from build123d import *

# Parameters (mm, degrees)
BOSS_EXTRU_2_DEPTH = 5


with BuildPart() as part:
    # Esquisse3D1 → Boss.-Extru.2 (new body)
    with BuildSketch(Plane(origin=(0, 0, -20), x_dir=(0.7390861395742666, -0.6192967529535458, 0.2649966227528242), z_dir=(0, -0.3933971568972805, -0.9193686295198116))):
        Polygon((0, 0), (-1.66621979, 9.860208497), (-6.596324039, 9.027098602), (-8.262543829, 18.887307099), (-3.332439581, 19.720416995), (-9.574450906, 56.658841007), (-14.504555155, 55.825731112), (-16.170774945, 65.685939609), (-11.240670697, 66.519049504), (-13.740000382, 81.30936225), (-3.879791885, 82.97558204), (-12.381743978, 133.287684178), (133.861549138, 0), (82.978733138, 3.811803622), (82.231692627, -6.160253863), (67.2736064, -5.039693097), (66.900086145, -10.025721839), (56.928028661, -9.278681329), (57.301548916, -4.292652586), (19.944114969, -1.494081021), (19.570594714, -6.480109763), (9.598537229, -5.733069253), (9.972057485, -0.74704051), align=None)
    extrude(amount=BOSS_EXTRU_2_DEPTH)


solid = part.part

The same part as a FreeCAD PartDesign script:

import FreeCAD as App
import Part
import Sketcher

V = App.Vector

doc = App.newDocument("Part")
body = doc.addObject("PartDesign::Body", "Body")

sketch1 = body.newObject("Sketcher::SketchObject", "Sketch")
sketch1.Placement = App.Placement(V(0, 0, -20), App.Rotation(V(0.73908614, -0.619296753, 0.264996623), V(-0.673610925, -0.679492612, 0.290754386), V(0, -0.393397157, -0.91936863), "ZXY"))
sketch1.addGeometry([
    Part.LineSegment(V(-1.66622, 9.860209, 0), V(0, 0, 0)),
    Part.LineSegment(V(0, 0, 0), V(9.972057, -0.747041, 0)),
    Part.LineSegment(V(9.972057, -0.747041, 0), V(9.598537, -5.733069, 0)),
    Part.LineSegment(V(9.598537, -5.733069, 0), V(19.570595, -6.48011, 0)),
    Part.LineSegment(V(19.570595, -6.48011, 0), V(19.944115, -1.494081, 0)),
    Part.LineSegment(V(19.944115, -1.494081, 0), V(57.301549, -4.292653, 0)),
    Part.LineSegment(V(57.301549, -4.292653, 0), V(56.928029, -9.278681, 0)),
    Part.LineSegment(V(56.928029, -9.278681, 0), V(66.900086, -10.025722, 0)),
    Part.LineSegment(V(66.900086, -10.025722, 0), V(67.273606, -5.039693, 0)),
    Part.LineSegment(V(67.273606, -5.039693, 0), V(82.231693, -6.160254, 0)),
    Part.LineSegment(V(82.231693, -6.160254, 0), V(82.978733, 3.811804, 0)),
    Part.LineSegment(V(82.978733, 3.811804, 0), V(133.861549, 0, 0)),
    Part.LineSegment(V(133.861549, 0, 0), V(-12.381744, 133.287684, 0)),
    Part.LineSegment(V(-12.381744, 133.287684, 0), V(-3.879792, 82.975582, 0)),
    Part.LineSegment(V(-3.879792, 82.975582, 0), V(-13.74, 81.309362, 0)),
    Part.LineSegment(V(-13.74, 81.309362, 0), V(-11.240671, 66.51905, 0)),
    Part.LineSegment(V(-11.240671, 66.51905, 0), V(-16.170775, 65.68594, 0)),
    Part.LineSegment(V(-16.170775, 65.68594, 0), V(-14.504555, 55.825731, 0)),
    Part.LineSegment(V(-14.504555, 55.825731, 0), V(-9.574451, 56.658841, 0)),
    Part.LineSegment(V(-9.574451, 56.658841, 0), V(-3.33244, 19.720417, 0)),
    Part.LineSegment(V(-3.33244, 19.720417, 0), V(-8.262544, 18.887307, 0)),
    Part.LineSegment(V(-8.262544, 18.887307, 0), V(-6.596324, 9.027099, 0)),
    Part.LineSegment(V(-6.596324, 9.027099, 0), V(-1.66622, 9.860209, 0)),
], False)
sketch1.addConstraint([
    Sketcher.Constraint("Coincident", 0, 2, 1, 1),
    Sketcher.Constraint("Coincident", 1, 2, 2, 1),
    Sketcher.Constraint("Coincident", 2, 2, 3, 1),
    Sketcher.Constraint("Coincident", 3, 2, 4, 1),
    Sketcher.Constraint("Coincident", 4, 2, 5, 1),
    Sketcher.Constraint("Coincident", 5, 2, 6, 1),
    Sketcher.Constraint("Coincident", 6, 2, 7, 1),
    Sketcher.Constraint("Coincident", 7, 2, 8, 1),
    Sketcher.Constraint("Coincident", 8, 2, 9, 1),
    Sketcher.Constraint("Coincident", 9, 2, 10, 1),
    Sketcher.Constraint("Coincident", 10, 2, 11, 1),
    Sketcher.Constraint("Coincident", 11, 2, 12, 1),
    Sketcher.Constraint("Coincident", 12, 2, 13, 1),
    Sketcher.Constraint("Coincident", 13, 2, 14, 1),
    Sketcher.Constraint("Coincident", 14, 2, 15, 1),
    Sketcher.Constraint("Coincident", 15, 2, 16, 1),
    Sketcher.Constraint("Coincident", 16, 2, 17, 1),
    Sketcher.Constraint("Coincident", 17, 2, 18, 1),
    Sketcher.Constraint("Coincident", 18, 2, 19, 1),
    Sketcher.Constraint("Coincident", 19, 2, 20, 1),
    Sketcher.Constraint("Coincident", 20, 2, 21, 1),
    Sketcher.Constraint("Coincident", 21, 2, 22, 1),
    Sketcher.Constraint("Coincident", 22, 2, 0, 1),
    Sketcher.Constraint("Coincident", 0, 2, -1, 1),
    Sketcher.Constraint("PointOnObject", 11, 2, -1),
    Sketcher.Constraint("Distance", 0, 10.0),
    Sketcher.Constraint("Distance", 1, 10.0),
    Sketcher.Constraint("Distance", 2, 5.0),
    Sketcher.Constraint("Distance", 3, 10.0),
    Sketcher.Constraint("Distance", 4, 5.0),
    Sketcher.Constraint("Distance", 6, 5.0),
    Sketcher.Constraint("Distance", 7, 10.0),
    Sketcher.Constraint("Distance", 8, 5.0),
    Sketcher.Constraint("Distance", 9, 15.0),
    Sketcher.Constraint("Distance", 10, 10.0),
    Sketcher.Constraint("Distance", 14, 10.0),
    Sketcher.Constraint("Distance", 15, 15.0),
    Sketcher.Constraint("Distance", 16, 5.0),
    Sketcher.Constraint("Distance", 17, 10.0),
    Sketcher.Constraint("Distance", 18, 5.0),
    Sketcher.Constraint("Distance", 20, 5.0),
    Sketcher.Constraint("Distance", 21, 10.0),
    Sketcher.Constraint("Distance", 22, 5.0),
    Sketcher.Constraint("DistanceX", 14, 2, -1, 1, 13.74),
    Sketcher.Constraint("DistanceX", 5, 2, 11, 2, 76.56),
    Sketcher.Constraint("DistanceY", -1, 1, 21, 2, 9.027099),
    Sketcher.Constraint("DistanceY", 6, 2, 4, 2, 7.7846),
    Sketcher.Constraint("DistanceY", 9, 2, 5, 2, 1.867601),
    Sketcher.Constraint("DistanceX", 12, 2, 1, 2, 22.353801),
    Sketcher.Constraint("DistanceY", 18, 2, 16, 2, 9.027099),
    Sketcher.Constraint("DistanceY", 4, 2, 19, 2, 21.214498),
    Sketcher.Constraint("DistanceX", 20, 2, 1, 2, 18.234601),
    Sketcher.Constraint("DistanceY", 22, 2, 20, 2, 9.027099),
    Sketcher.Constraint("Distance", 12, 197.870431),
    Sketcher.Constraint("DistanceY", 1, 2, -1, 1, 0.747041),
    Sketcher.Constraint("DistanceY", 2, 2, -1, 1, 5.733069),
    Sketcher.Constraint("DistanceY", 3, 2, -1, 1, 6.48011),
    Sketcher.Constraint("DistanceY", 4, 2, -1, 1, 1.494081),
    Sketcher.Constraint("DistanceX", -1, 1, 5, 2, 57.301549),
    Sketcher.Constraint("DistanceX", -1, 1, 6, 2, 56.928029),
    Sketcher.Constraint("DistanceY", 7, 2, -1, 1, 10.025722),
    Sketcher.Constraint("DistanceX", 13, 2, -1, 1, 3.879792),
    Sketcher.Constraint("DistanceX", 15, 2, -1, 1, 11.240671),
    Sketcher.Constraint("DistanceY", -1, 1, 15, 2, 66.51905),
    Sketcher.Constraint("DistanceY", -1, 1, 16, 2, 65.68594),
    Sketcher.Constraint("DistanceY", -1, 1, 17, 2, 55.825731),
    Sketcher.Constraint("DistanceX", 7, 2, 8, 2, 0.37352),
    Sketcher.Constraint("DistanceX", 9, 2, 10, 2, 0.747041),
])
pad1 = body.newObject("PartDesign::Pad", "Pad")
pad1.Profile = sketch1
pad1.Length = 5

doc.recompute()
